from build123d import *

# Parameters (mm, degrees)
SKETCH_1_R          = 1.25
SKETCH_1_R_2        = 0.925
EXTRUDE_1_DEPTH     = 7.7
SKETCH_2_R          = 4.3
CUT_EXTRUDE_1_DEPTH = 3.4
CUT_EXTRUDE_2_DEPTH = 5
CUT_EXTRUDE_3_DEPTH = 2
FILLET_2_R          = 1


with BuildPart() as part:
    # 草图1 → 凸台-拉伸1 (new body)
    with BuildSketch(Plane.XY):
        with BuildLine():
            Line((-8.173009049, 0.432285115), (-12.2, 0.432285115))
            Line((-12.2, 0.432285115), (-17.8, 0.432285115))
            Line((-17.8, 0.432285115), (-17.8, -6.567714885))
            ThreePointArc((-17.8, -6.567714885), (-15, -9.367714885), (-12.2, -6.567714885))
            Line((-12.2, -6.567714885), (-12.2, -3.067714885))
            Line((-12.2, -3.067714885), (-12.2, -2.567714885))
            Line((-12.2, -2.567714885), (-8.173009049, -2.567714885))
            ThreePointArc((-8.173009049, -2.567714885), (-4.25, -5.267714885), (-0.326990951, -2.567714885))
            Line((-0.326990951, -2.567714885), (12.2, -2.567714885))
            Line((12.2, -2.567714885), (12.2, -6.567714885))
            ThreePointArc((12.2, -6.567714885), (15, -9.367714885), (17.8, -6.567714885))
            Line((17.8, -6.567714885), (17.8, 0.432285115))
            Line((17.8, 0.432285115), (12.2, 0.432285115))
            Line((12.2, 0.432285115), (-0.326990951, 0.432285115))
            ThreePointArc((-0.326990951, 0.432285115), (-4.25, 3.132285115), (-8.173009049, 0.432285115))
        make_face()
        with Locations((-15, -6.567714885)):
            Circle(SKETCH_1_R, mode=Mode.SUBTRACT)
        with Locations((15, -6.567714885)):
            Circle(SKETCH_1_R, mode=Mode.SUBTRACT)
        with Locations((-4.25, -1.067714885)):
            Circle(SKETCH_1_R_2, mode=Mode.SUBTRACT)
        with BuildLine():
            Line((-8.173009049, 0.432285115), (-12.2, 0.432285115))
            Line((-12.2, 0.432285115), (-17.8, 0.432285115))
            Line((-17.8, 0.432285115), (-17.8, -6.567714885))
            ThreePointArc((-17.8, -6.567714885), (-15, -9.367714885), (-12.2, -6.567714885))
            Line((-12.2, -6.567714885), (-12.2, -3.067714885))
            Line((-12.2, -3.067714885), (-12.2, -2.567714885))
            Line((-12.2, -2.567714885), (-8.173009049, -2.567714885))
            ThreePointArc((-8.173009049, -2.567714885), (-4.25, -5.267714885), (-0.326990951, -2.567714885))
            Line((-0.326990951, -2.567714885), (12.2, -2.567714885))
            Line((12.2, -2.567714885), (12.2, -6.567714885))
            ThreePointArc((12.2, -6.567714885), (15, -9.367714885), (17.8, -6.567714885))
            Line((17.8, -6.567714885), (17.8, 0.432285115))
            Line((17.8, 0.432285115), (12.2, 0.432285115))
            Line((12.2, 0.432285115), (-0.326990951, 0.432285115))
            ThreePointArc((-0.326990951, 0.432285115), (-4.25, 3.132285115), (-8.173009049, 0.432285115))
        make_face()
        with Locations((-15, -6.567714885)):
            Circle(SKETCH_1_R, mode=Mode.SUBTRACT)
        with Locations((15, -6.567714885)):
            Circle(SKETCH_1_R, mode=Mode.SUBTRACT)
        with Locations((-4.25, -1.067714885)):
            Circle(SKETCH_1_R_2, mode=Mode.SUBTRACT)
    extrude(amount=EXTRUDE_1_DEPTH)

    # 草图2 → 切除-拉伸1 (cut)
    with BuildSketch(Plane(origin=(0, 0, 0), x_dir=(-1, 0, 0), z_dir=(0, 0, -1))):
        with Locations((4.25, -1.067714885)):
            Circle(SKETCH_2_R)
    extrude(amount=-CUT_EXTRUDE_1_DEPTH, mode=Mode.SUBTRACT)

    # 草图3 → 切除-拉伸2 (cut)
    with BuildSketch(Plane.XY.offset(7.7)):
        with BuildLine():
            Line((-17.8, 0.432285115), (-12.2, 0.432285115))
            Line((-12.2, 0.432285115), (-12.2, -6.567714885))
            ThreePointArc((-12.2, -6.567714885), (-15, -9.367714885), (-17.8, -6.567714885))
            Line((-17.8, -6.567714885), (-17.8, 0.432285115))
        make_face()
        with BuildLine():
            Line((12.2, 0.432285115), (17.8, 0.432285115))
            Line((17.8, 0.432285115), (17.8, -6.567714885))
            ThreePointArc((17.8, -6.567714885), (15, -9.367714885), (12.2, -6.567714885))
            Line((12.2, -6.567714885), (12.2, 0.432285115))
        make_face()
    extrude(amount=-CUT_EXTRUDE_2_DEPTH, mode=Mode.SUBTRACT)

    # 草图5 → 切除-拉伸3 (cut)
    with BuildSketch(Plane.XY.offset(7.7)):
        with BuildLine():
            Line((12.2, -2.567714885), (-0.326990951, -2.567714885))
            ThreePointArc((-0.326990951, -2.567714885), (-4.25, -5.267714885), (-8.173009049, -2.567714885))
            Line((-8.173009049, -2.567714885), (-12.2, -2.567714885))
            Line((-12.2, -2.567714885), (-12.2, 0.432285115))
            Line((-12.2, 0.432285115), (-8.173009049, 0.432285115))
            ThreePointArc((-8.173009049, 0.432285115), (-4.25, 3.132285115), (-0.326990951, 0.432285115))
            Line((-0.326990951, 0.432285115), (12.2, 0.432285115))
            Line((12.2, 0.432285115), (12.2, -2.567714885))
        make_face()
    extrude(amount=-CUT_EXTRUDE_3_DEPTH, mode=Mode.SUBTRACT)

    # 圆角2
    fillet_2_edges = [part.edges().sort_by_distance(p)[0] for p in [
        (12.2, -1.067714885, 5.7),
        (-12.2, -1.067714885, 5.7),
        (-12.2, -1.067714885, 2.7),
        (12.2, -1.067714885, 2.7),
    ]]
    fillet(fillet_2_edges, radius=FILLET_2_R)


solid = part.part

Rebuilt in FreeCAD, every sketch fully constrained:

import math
import FreeCAD as App
import Part
import Sketcher

V = App.Vector
Q = App.Units.Quantity


def edges_at(feature, points):
    """Names of the edges that pass closest to the given points."""
    edges = feature.Shape.Edges
    near = lambda p: min(range(len(edges)), key=lambda i: edges[i].distToShape(Part.Vertex(*p))[0])
    return sorted({f"Edge{near(p) + 1}" for p in points})

doc = App.newDocument("Part")
params = doc.addObject("Spreadsheet::Sheet", "Params")
for row, (alias, value) in enumerate([
    ("sketch1_diameter", "2.5 mm"),
    ("sketch1_radius", "2.8 mm"),
    ("sketch1_radius2", "4.2 mm"),
    ("sketch1_diameter2", "1.85 mm"),
    ("sketch1_height", "7 mm"),
    ("pad1_length", "7.7 mm"),
    ("sketch2_diameter", "8.6 mm"),
    ("pocket1_length", "3.4 mm"),
    ("sketch3_radius", "2.8 mm"),
    ("sketch3_height", "7 mm"),
    ("pocket2_length", "5 mm"),
    ("sketch4_radius", "4.2 mm"),
    ("sketch4_height", "3 mm"),
    ("pocket3_length", "2 mm"),
    ("fillet_radius", "1 mm"),
], start=1):
    params.set(f"A{row}", alias)
    params.set(f"B{row}", "=" + value)
    params.setAlias(f"B{row}", alias)

body = doc.addObject("PartDesign::Body", "Body")

# Sketch on XY plane
sketch1 = body.newObject("Sketcher::SketchObject", "Sketch")
sketch1.AttachmentSupport = (doc.getObject("XY_Plane"), [""])
sketch1.MapMode = "FlatFace"
sketch1.addGeometry([
    Part.LineSegment(V(-8.2, 0.4, 0), V(-17.8, 0.4, 0)),  # 0
    Part.LineSegment(V(-17.8, 0.4, 0), V(-17.8, -6.6, 0)),  # 1
    Part.ArcOfCircle(Part.Circle(V(-15, -6.6, 0), V(0, 0, 1), 2.8), math.radians(180), math.radians(360)),  # 2
    Part.LineSegment(V(-12.2, -6.6, 0), V(-12.2, -2.6, 0)),  # 3
    Part.LineSegment(V(-12.2, -2.6, 0), V(-8.2, -2.6, 0)),  # 4
    Part.ArcOfCircle(Part.Circle(V(-4.2, -1.1, 0), V(0, 0, 1), 4.2), math.radians(-159), math.radians(-21)),  # 5
    Part.LineSegment(V(-0.3, -2.6, 0), V(12.2, -2.6, 0)),  # 6
    Part.LineSegment(V(12.2, -2.6, 0), V(12.2, -6.6, 0)),  # 7
    Part.ArcOfCircle(Part.Circle(V(15, -6.6, 0), V(0, 0, 1), 2.8), math.radians(180), math.radians(360)),  # 8
    Part.LineSegment(V(17.8, -6.6, 0), V(17.8, 0.4, 0)),  # 9
    Part.LineSegment(V(17.8, 0.4, 0), V(-0.3, 0.4, 0)),  # 10
    Part.ArcOfCircle(Part.Circle(V(-4.2, -1.1, 0), V(0, 0, 1), 4.2), math.radians(21), math.radians(159)),  # 11
    Part.Circle(V(-15, -6.6, 0), V(0, 0, 1), 1.2),  # 12
    Part.Circle(V(15, -6.6, 0), V(0, 0, 1), 1.2),  # 13
    Part.Circle(V(-4.2, -1.1, 0), V(0, 0, 1), 0.9),  # 14
], False)
sketch1.addConstraint([
    Sketcher.Constraint("Coincident", 0, 2, 1, 1),
    Sketcher.Constraint("Tangent", 1, 2, 2, 1),
    Sketcher.Constraint("Tangent", 2, 2, 3, 1),
    Sketcher.Constraint("Coincident", 3, 2, 4, 1),
    Sketcher.Constraint("Coincident", 4, 2, 5, 1),
    Sketcher.Constraint("Coincident", 5, 2, 6, 1),
    Sketcher.Constraint("Coincident", 6, 2, 7, 1),
    Sketcher.Constraint("Tangent", 7, 2, 8, 1),
    Sketcher.Constraint("Tangent", 8, 2, 9, 1),
    Sketcher.Constraint("Coincident", 9, 2, 10, 1),
    Sketcher.Constraint("Coincident", 10, 2, 11, 1),
    Sketcher.Constraint("Coincident", 11, 2, 0, 1),
    Sketcher.Constraint("Horizontal", 0),
    Sketcher.Constraint("Vertical", 1),
    Sketcher.Constraint("Vertical", 3),
    Sketcher.Constraint("Horizontal", 4),
    Sketcher.Constraint("Horizontal", 6),
    Sketcher.Constraint("Vertical", 7),
    Sketcher.Constraint("Vertical", 9),
    Sketcher.Constraint("Horizontal", 10),
    Sketcher.Constraint("Coincident", 11, 3, 5, 3),
    Sketcher.Constraint("Coincident", 12, 3, 2, 3),
    Sketcher.Constraint("Coincident", 13, 3, 8, 3),
    Sketcher.Constraint("Coincident", 14, 3, 5, 3),
    Sketcher.Constraint("Equal", 2, 8),
    Sketcher.Constraint("Equal", 5, 11),
    Sketcher.Constraint("Equal", 12, 13),
    Sketcher.Constraint("Symmetric", 2, 3, 8, 3, -2),
    Sketcher.Constraint("Horizontal", 4, 2, 5, 2),
    Sketcher.Constraint("Horizontal", 0, 2, 9, 2),
    Sketcher.Constraint("Vertical", 5, 2, 10, 2),
    Sketcher.Constraint("Diameter", 12, Q("2.5 mm")),
    Sketcher.Constraint("Radius", 2, Q("2.8 mm")),
    Sketcher.Constraint("Radius", 5, Q("4.2 mm")),
    Sketcher.Constraint("Diameter", 14, Q("1.85 mm")),
    Sketcher.Constraint("DistanceY", 1, 2, 1, 1, Q("7 mm")),
    Sketcher.Constraint("DistanceY", 3, 1, 3, 2, Q("4 mm")),
    Sketcher.Constraint("DistanceX", 2, 3, -1, 1, Q("15 mm")),
    Sketcher.Constraint("DistanceX", 5, 3, -1, 1, Q("4.25 mm")),
    Sketcher.Constraint("DistanceY", 2, 3, -1, 1, Q("6.567715 mm")),
])
sketch1.setExpression("Constraints[31]", "Params.sketch1_diameter")
sketch1.setExpression("Constraints[32]", "Params.sketch1_radius")
sketch1.setExpression("Constraints[33]", "Params.sketch1_radius2")
sketch1.setExpression("Constraints[34]", "Params.sketch1_diameter2")
sketch1.setExpression("Constraints[35]", "Params.sketch1_height")
pad1 = body.newObject("PartDesign::Pad", "Pad")
pad1.Profile = sketch1
pad1.setExpression("Length", "Params.pad1_length")

# Sketch on XY plane
sketch2 = body.newObject("Sketcher::SketchObject", "Sketch001")
sketch2.AttachmentSupport = (doc.getObject("XY_Plane"), [""])
sketch2.MapMode = "FlatFace"
sketch2.addGeometry(Part.Circle(V(-4.2, -1.1, 0), V(0, 0, 1), 4.3), False)
sketch2.addConstraint([
    Sketcher.Constraint("Diameter", 0, Q("8.6 mm")),
    Sketcher.Constraint("DistanceX", 0, 3, -1, 1, Q("4.25 mm")),
    Sketcher.Constraint("DistanceY", 0, 3, -1, 1, Q("1.067715 mm")),
])
sketch2.setExpression("Constraints[0]", "Params.sketch2_diameter")
pocket1 = body.newObject("PartDesign::Pocket", "Pocket")
pocket1.Profile = sketch2
pocket1.setExpression("Length", "Params.pocket1_length")
pocket1.Reversed = True

# Sketch on XY plane
sketch3 = body.newObject("Sketcher::SketchObject", "Sketch002")
sketch3.AttachmentSupport = (doc.getObject("XY_Plane"), [""])
sketch3.MapMode = "FlatFace"
sketch3.AttachmentOffset = App.Placement(V(0, 0, 7.7), App.Rotation())
sketch3.addGeometry([
    Part.LineSegment(V(-12.2, 0.4, 0), V(-17.8, 0.4, 0)),  # 0
    Part.LineSegment(V(-17.8, 0.4, 0), V(-17.8, -6.6, 0)),  # 1
    Part.ArcOfCircle(Part.Circle(V(-15, -6.6, 0), V(0, 0, 1), 2.8), math.radians(180), math.radians(360)),  # 2
    Part.LineSegment(V(-12.2, -6.6, 0), V(-12.2, 0.4, 0)),  # 3
    Part.LineSegment(V(17.8, 0.4, 0), V(12.2, 0.4, 0)),  # 4
    Part.LineSegment(V(12.2, 0.4, 0), V(12.2, -6.6, 0)),  # 5
    Part.ArcOfCircle(Part.Circle(V(15, -6.6, 0), V(0, 0, 1), 2.8), math.radians(180), math.radians(360)),  # 6
    Part.LineSegment(V(17.8, -6.6, 0), V(17.8, 0.4, 0)),  # 7
], False)
sketch3.addConstraint([
    Sketcher.Constraint("Coincident", 0, 2, 1, 1),
    Sketcher.Constraint("Tangent", 1, 2, 2, 1),
    Sketcher.Constraint("Tangent", 2, 2, 3, 1),
    Sketcher.Constraint("Coincident", 3, 2, 0, 1),
    Sketcher.Constraint("Coincident", 4, 2, 5, 1),
    Sketcher.Constraint("Tangent", 5, 2, 6, 1),
    Sketcher.Constraint("Tangent", 6, 2, 7, 1),
    Sketcher.Constraint("Coincident", 7, 2, 4, 1),
    Sketcher.Constraint("Horizontal", 0),
    Sketcher.Constraint("Vertical", 1),
    Sketcher.Constraint("Vertical", 3),
    Sketcher.Constraint("Horizontal", 4),
    Sketcher.Constraint("Vertical", 5),
    Sketcher.Constraint("Vertical", 7),
    Sketcher.Constraint("Equal", 2, 6),
    Sketcher.Constraint("Symmetric", 2, 3, 6, 3, -2),
    Sketcher.Constraint("Horizontal", 3, 2, 4, 2),
    Sketcher.Constraint("Radius", 2, Q("2.8 mm")),
    Sketcher.Constraint("DistanceY", 1, 2, 1, 1, Q("7 mm")),
    Sketcher.Constraint("DistanceX", 2, 3, -1, 1, Q("15 mm")),
    Sketcher.Constraint("DistanceY", 2, 3, -1, 1, Q("6.567715 mm")),
])
sketch3.setExpression("Constraints[17]", "Params.sketch3_radius")
sketch3.setExpression("Constraints[18]", "Params.sketch3_height")
pocket2 = body.newObject("PartDesign::Pocket", "Pocket001")
pocket2.Profile = sketch3
pocket2.setExpression("Length", "Params.pocket2_length")

# Sketch on XY plane
sketch4 = body.newObject("Sketcher::SketchObject", "Sketch003")
sketch4.AttachmentSupport = (doc.getObject("XY_Plane"), [""])
sketch4.MapMode = "FlatFace"
sketch4.AttachmentOffset = App.Placement(V(0, 0, 7.7), App.Rotation())
sketch4.addGeometry([
    Part.LineSegment(V(-0.3, -2.6, 0), V(12.2, -2.6, 0)),  # 0
    Part.LineSegment(V(12.2, -2.6, 0), V(12.2, 0.4, 0)),  # 1
    Part.LineSegment(V(12.2, 0.4, 0), V(-0.3, 0.4, 0)),  # 2
    Part.ArcOfCircle(Part.Circle(V(-4.2, -1.1, 0), V(0, 0, 1), 4.2), math.radians(21), math.radians(159)),  # 3
    Part.LineSegment(V(-8.2, 0.4, 0), V(-12.2, 0.4, 0)),  # 4
    Part.LineSegment(V(-12.2, 0.4, 0), V(-12.2, -2.6, 0)),  # 5
    Part.LineSegment(V(-12.2, -2.6, 0), V(-8.2, -2.6, 0)),  # 6
    Part.ArcOfCircle(Part.Circle(V(-4.2, -1.1, 0), V(0, 0, 1), 4.2), math.radians(-159), math.radians(-21)),  # 7
], False)
sketch4.addConstraint([
    Sketcher.Constraint("Coincident", 0, 2, 1, 1),
    Sketcher.Constraint("Coincident", 1, 2, 2, 1),
    Sketcher.Constraint("Coincident", 2, 2, 3, 1),
    Sketcher.Constraint("Coincident", 3, 2, 4, 1),
    Sketcher.Constraint("Coincident", 4, 2, 5, 1),
    Sketcher.Constraint("Coincident", 5, 2, 6, 1),
    Sketcher.Constraint("Coincident", 6, 2, 7, 1),
    Sketcher.Constraint("Coincident", 7, 2, 0, 1),
    Sketcher.Constraint("Horizontal", 0),
    Sketcher.Constraint("Vertical", 1),
    Sketcher.Constraint("Horizontal", 2),
    Sketcher.Constraint("Horizontal", 4),
    Sketcher.Constraint("Vertical", 5),
    Sketcher.Constraint("Horizontal", 6),
    Sketcher.Constraint("Coincident", 7, 3, 3, 3),
    Sketcher.Constraint("Equal", 3, 7),
    Sketcher.Constraint("Symmetric", 1, 2, 4, 2, -2),
    Sketcher.Constraint("Horizontal", 0, 2, 5, 2),
    Sketcher.Constraint("Vertical", 3, 2, 6, 2),
    Sketcher.Constraint("Radius", 3, Q("4.2 mm")),
    Sketcher.Constraint("DistanceY", 1, 1, 1, 2, Q("3 mm")),
    Sketcher.Constraint("DistanceX", -1, 1, 0, 2, Q("12.2 mm")),
    Sketcher.Constraint("DistanceX", 3, 3, -1, 1, Q("4.25 mm")),
    Sketcher.Constraint("DistanceY", 3, 3, -1, 1, Q("1.067715 mm")),
])
sketch4.setExpression("Constraints[19]", "Params.sketch4_radius")
sketch4.setExpression("Constraints[20]", "Params.sketch4_height")
pocket3 = body.newObject("PartDesign::Pocket", "Pocket002")
pocket3.Profile = sketch4
pocket3.setExpression("Length", "Params.pocket3_length")
doc.recompute()

fillet = body.newObject("PartDesign::Fillet", "Fillet")
fillet.Base = (pocket3, edges_at(pocket3, [
    (12.2, -1.068, 5.7),
    (-12.2, -1.068, 5.7),
    (-12.2, -1.068, 2.7),
    (12.2, -1.068, 2.7),
]))
fillet.setExpression("Radius", "Params.fillet_radius")

doc.recompute()
